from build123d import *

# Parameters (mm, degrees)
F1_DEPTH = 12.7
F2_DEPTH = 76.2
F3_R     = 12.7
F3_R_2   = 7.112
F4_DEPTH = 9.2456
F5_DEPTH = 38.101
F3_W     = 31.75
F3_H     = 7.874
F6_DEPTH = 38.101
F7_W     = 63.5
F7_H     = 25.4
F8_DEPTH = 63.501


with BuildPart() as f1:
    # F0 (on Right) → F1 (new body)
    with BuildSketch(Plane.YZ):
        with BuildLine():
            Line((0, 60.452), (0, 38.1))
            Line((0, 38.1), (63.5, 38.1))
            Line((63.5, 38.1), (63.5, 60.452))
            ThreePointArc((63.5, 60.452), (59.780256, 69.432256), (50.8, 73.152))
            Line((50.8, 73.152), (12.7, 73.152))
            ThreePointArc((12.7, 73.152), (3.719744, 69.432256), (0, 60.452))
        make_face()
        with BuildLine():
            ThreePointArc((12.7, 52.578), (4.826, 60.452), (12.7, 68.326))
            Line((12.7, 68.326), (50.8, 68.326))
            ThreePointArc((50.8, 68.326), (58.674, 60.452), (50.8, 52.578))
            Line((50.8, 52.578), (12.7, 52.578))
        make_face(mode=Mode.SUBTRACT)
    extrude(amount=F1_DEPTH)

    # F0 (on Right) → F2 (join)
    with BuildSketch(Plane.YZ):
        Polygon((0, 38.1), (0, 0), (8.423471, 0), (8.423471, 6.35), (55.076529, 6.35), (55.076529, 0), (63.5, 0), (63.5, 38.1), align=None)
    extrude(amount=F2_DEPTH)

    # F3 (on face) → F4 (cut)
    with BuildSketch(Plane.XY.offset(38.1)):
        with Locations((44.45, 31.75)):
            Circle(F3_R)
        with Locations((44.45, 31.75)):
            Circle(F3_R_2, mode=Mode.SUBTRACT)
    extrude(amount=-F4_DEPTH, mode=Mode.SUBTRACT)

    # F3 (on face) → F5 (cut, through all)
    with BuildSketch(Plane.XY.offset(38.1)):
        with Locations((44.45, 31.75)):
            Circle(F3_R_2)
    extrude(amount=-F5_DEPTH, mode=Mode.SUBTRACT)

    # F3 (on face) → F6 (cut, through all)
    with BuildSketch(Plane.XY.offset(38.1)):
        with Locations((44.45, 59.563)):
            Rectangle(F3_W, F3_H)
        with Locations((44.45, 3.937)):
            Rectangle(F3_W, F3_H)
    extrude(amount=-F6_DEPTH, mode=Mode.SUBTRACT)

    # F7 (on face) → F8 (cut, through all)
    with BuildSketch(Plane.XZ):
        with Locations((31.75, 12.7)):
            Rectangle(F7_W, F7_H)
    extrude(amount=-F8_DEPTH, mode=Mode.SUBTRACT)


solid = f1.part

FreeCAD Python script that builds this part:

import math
import FreeCAD as App
import Part
import Sketcher

V = App.Vector
Q = App.Units.Quantity

doc = App.newDocument("Part")
body = doc.addObject("PartDesign::Body", "Body")

sketch1 = doc.addObject("Sketcher::SketchObject", "Sketch")
body.addObject(sketch1)
sketch1.AttachmentSupport = (doc.YZ_Plane, [""])
sketch1.MapMode = "FlatFace"
sketch1.addGeometry(Part.LineSegment(V(0, 60, 0), V(0, 38, 0)), False)
sketch1.addGeometry(Part.LineSegment(V(0, 38, 0), V(64, 38, 0)), False)
sketch1.addGeometry(Part.LineSegment(V(64, 38, 0), V(64, 60, 0)), False)
sketch1.addGeometry(Part.ArcOfCircle(Part.Circle(V(51, 60, 0), V(0, 0, 1), 13), math.radians(0), math.radians(90)), False)
sketch1.addGeometry(Part.LineSegment(V(51, 73, 0), V(13, 73, 0)), False)
sketch1.addGeometry(Part.ArcOfCircle(Part.Circle(V(13, 60, 0), V(0, 0, 1), 13), math.radians(90), math.radians(180)), False)
sketch1.addGeometry(Part.LineSegment(V(51, 53, 0), V(13, 53, 0)), False)
sketch1.addGeometry(Part.ArcOfCircle(Part.Circle(V(13, 60, 0), V(0, 0, 1), 8), math.radians(90), math.radians(270)), False)
sketch1.addGeometry(Part.LineSegment(V(13, 68, 0), V(51, 68, 0)), False)
sketch1.addGeometry(Part.ArcOfCircle(Part.Circle(V(51, 60, 0), V(0, 0, 1), 8), math.radians(-90), math.radians(90)), False)
sketch1.addConstraint(Sketcher.Constraint("Coincident", 0, 2, 1, 1))
sketch1.addConstraint(Sketcher.Constraint("Coincident", 1, 2, 2, 1))
sketch1.addConstraint(Sketcher.Constraint("Tangent", 2, 2, 3, 1))
sketch1.addConstraint(Sketcher.Constraint("Tangent", 3, 2, 4, 1))
sketch1.addConstraint(Sketcher.Constraint("Tangent", 4, 2, 5, 1))
sketch1.addConstraint(Sketcher.Constraint("Tangent", 5, 2, 0, 1))
sketch1.addConstraint(Sketcher.Constraint("Tangent", 6, 2, 7, 2))
sketch1.addConstraint(Sketcher.Constraint("Tangent", 7, 1, 8, 1))
sketch1.addConstraint(Sketcher.Constraint("Tangent", 8, 2, 9, 2))
sketch1.addConstraint(Sketcher.Constraint("Tangent", 9, 1, 6, 1))
sketch1.addConstraint(Sketcher.Constraint("Vertical", 0))
sketch1.addConstraint(Sketcher.Constraint("Horizontal", 1))
sketch1.addConstraint(Sketcher.Constraint("Vertical", 2))
sketch1.addConstraint(Sketcher.Constraint("Horizontal", 4))
sketch1.addConstraint(Sketcher.Constraint("Horizontal", 6))
sketch1.addConstraint(Sketcher.Constraint("Horizontal", 8))
sketch1.addConstraint(Sketcher.Constraint("Coincident", 7, 3, 5, 3))
sketch1.addConstraint(Sketcher.Constraint("Coincident", 9, 3, 3, 3))
sketch1.addConstraint(Sketcher.Constraint("PointOnObject", 0, 2, -2))
sketch1.addConstraint(Sketcher.Constraint("Radius", 3, Q("0.5 in")))
sketch1.addConstraint(Sketcher.Constraint("Radius", 7, Q("0.31 in")))
sketch1.addConstraint(Sketcher.Constraint("DistanceX", 1, 1, 1, 2, Q("2.5 in")))
sketch1.addConstraint(Sketcher.Constraint("DistanceY", 0, 2, 0, 1, Q("0.88 in")))
sketch1.addConstraint(Sketcher.Constraint("DistanceY", -1, 1, 0, 2, Q("1.5 in")))
pad1 = doc.addObject("PartDesign::Pad", "Pad")
body.addObject(pad1)
pad1.Profile = sketch1
pad1.Length = Q("0.5 in")

sketch2 = doc.addObject("Sketcher::SketchObject", "Sketch001")
body.addObject(sketch2)
sketch2.AttachmentSupport = (doc.YZ_Plane, [""])
sketch2.MapMode = "FlatFace"
sketch2.addGeometry(Part.LineSegment(V(0, 38, 0), V(0, 0, 0)), False)
sketch2.addGeometry(Part.LineSegment(V(0, 0, 0), V(8, 0, 0)), False)
sketch2.addGeometry(Part.LineSegment(V(8, 0, 0), V(8, 6, 0)), False)
sketch2.addGeometry(Part.LineSegment(V(8, 6, 0), V(55, 6, 0)), False)
sketch2.addGeometry(Part.LineSegment(V(55, 6, 0), V(55, 0, 0)), False)
sketch2.addGeometry(Part.LineSegment(V(55, 0, 0), V(64, 0, 0)), False)
sketch2.addGeometry(Part.LineSegment(V(64, 0, 0), V(64, 38, 0)), False)
sketch2.addGeometry(Part.LineSegment(V(64, 38, 0), V(0, 38, 0)), False)
sketch2.addConstraint(Sketcher.Constraint("Coincident", 0, 2, 1, 1))
sketch2.addConstraint(Sketcher.Constraint("Coincident", 1, 2, 2, 1))
sketch2.addConstraint(Sketcher.Constraint("Coincident", 2, 2, 3, 1))
sketch2.addConstraint(Sketcher.Constraint("Coincident", 3, 2, 4, 1))
sketch2.addConstraint(Sketcher.Constraint("Coincident", 4, 2, 5, 1))
sketch2.addConstraint(Sketcher.Constraint("Coincident", 5, 2, 6, 1))
sketch2.addConstraint(Sketcher.Constraint("Coincident", 6, 2, 7, 1))
sketch2.addConstraint(Sketcher.Constraint("Coincident", 7, 2, 0, 1))
sketch2.addConstraint(Sketcher.Constraint("Vertical", 0))
sketch2.addConstraint(Sketcher.Constraint("Horizontal", 1))
sketch2.addConstraint(Sketcher.Constraint("Vertical", 2))
sketch2.addConstraint(Sketcher.Constraint("Horizontal", 3))
sketch2.addConstraint(Sketcher.Constraint("Vertical", 4))
sketch2.addConstraint(Sketcher.Constraint("Horizontal", 5))
sketch2.addConstraint(Sketcher.Constraint("Vertical", 6))
sketch2.addConstraint(Sketcher.Constraint("Horizontal", 7))
sketch2.addConstraint(Sketcher.Constraint("Coincident", 0, 2, -1, 1))
sketch2.addConstraint(Sketcher.Constraint("PointOnObject", 4, 2, -1))
sketch2.addConstraint(Sketcher.Constraint("Equal", 1, 5))
sketch2.addConstraint(Sketcher.Constraint("DistanceX", 7, 2, 7, 1, Q("2.5 in")))
sketch2.addConstraint(Sketcher.Constraint("DistanceY", 0, 2, 0, 1, Q("1.5 in")))
sketch2.addConstraint(Sketcher.Constraint("DistanceY", 2, 1, 2, 2, Q("0.25 in")))
sketch2.addConstraint(Sketcher.Constraint("DistanceX", 1, 1, 1, 2, Q("8.423471 mm")))
pad2 = doc.addObject("PartDesign::Pad", "Pad001")
body.addObject(pad2)
pad2.Profile = sketch2
pad2.Length = Q("3 in")

sketch3 = doc.addObject("Sketcher::SketchObject", "Sketch002")
body.addObject(sketch3)
sketch3.AttachmentSupport = (doc.XY_Plane, [""])
sketch3.MapMode = "FlatFace"
sketch3.AttachmentOffset = App.Placement(V(0, 0, 1.5 * 25.4), App.Rotation())
sketch3.addGeometry(Part.Circle(V(44, 32, 0), V(0, 0, 1), 13), False)
sketch3.addGeometry(Part.Circle(V(44, 32, 0), V(0, 0, 1), 7), False)
sketch3.addConstraint(Sketcher.Constraint("Coincident", 1, 3, 0, 3))
sketch3.addConstraint(Sketcher.Constraint("Diameter", 0, Q("1 in")))
sketch3.addConstraint(Sketcher.Constraint("Diameter", 1, Q("0.56 in")))
sketch3.addConstraint(Sketcher.Constraint("DistanceX", -1, 1, 0, 3, Q("1.75 in")))
sketch3.addConstraint(Sketcher.Constraint("DistanceY", -1, 1, 0, 3, Q("1.25 in")))
pocket1 = doc.addObject("PartDesign::Pocket", "Pocket")
body.addObject(pocket1)
pocket1.Profile = sketch3
pocket1.Length = Q("0.364 in")

sketch4 = doc.addObject("Sketcher::SketchObject", "Sketch003")
body.addObject(sketch4)
sketch4.AttachmentSupport = (doc.XY_Plane, [""])
sketch4.MapMode = "FlatFace"
sketch4.AttachmentOffset = App.Placement(V(0, 0, 1.5 * 25.4), App.Rotation())
sketch4.addGeometry(Part.Circle(V(44, 32, 0), V(0, 0, 1), 7), False)
sketch4.addConstraint(Sketcher.Constraint("Diameter", 0, Q("0.56 in")))
sketch4.addConstraint(Sketcher.Constraint("DistanceX", -1, 1, 0, 3, Q("1.75 in")))
sketch4.addConstraint(Sketcher.Constraint("DistanceY", -1, 1, 0, 3, Q("1.25 in")))
pocket2 = doc.addObject("PartDesign::Pocket", "Pocket001")
body.addObject(pocket2)
pocket2.Profile = sketch4
pocket2.Type = "ThroughAll"

sketch5 = doc.addObject("Sketcher::SketchObject", "Sketch004")
body.addObject(sketch5)
sketch5.AttachmentSupport = (doc.XY_Plane, [""])
sketch5.MapMode = "FlatFace"
sketch5.AttachmentOffset = App.Placement(V(0, 0, 1.5 * 25.4), App.Rotation())
sketch5.addGeometry(Part.LineSegment(V(29, 64, 0), V(29, 56, 0)), False)
sketch5.addGeometry(Part.LineSegment(V(29, 56, 0), V(60, 56, 0)), False)
sketch5.addGeometry(Part.LineSegment(V(60, 56, 0), V(60, 64, 0)), False)
sketch5.addGeometry(Part.LineSegment(V(60, 64, 0), V(29, 64, 0)), False)
sketch5.addGeometry(Part.LineSegment(V(29, 8, 0), V(29, 0, 0)), False)
sketch5.addGeometry(Part.LineSegment(V(29, 0, 0), V(60, 0, 0)), False)
sketch5.addGeometry(Part.LineSegment(V(60, 0, 0), V(60, 8, 0)), False)
sketch5.addGeometry(Part.LineSegment(V(60, 8, 0), V(29, 8, 0)), False)
sketch5.addConstraint(Sketcher.Constraint("Coincident", 0, 2, 1, 1))
sketch5.addConstraint(Sketcher.Constraint("Coincident", 1, 2, 2, 1))
sketch5.addConstraint(Sketcher.Constraint("Coincident", 2, 2, 3, 1))
sketch5.addConstraint(Sketcher.Constraint("Coincident", 3, 2, 0, 1))
sketch5.addConstraint(Sketcher.Constraint("Coincident", 4, 2, 5, 1))
sketch5.addConstraint(Sketcher.Constraint("Coincident", 5, 2, 6, 1))
sketch5.addConstraint(Sketcher.Constraint("Coincident", 6, 2, 7, 1))
sketch5.addConstraint(Sketcher.Constraint("Coincident", 7, 2, 4, 1))
sketch5.addConstraint(Sketcher.Constraint("Vertical", 0))
sketch5.addConstraint(Sketcher.Constraint("Horizontal", 1))
sketch5.addConstraint(Sketcher.Constraint("Vertical", 2))
sketch5.addConstraint(Sketcher.Constraint("Horizontal", 3))
sketch5.addConstraint(Sketcher.Constraint("Vertical", 4))
sketch5.addConstraint(Sketcher.Constraint("Horizontal", 5))
sketch5.addConstraint(Sketcher.Constraint("Vertical", 6))
sketch5.addConstraint(Sketcher.Constraint("Horizontal", 7))
sketch5.addConstraint(Sketcher.Constraint("PointOnObject", 4, 2, -1))
sketch5.addConstraint(Sketcher.Constraint("Vertical", 3, 2, 4, 2))
sketch5.addConstraint(Sketcher.Constraint("Vertical", 2, 2, 5, 2))
sketch5.addConstraint(Sketcher.Constraint("Equal", 2, 4))
sketch5.addConstraint(Sketcher.Constraint("DistanceX", 1, 1, 1, 2, Q("1.25 in")))
sketch5.addConstraint(Sketcher.Constraint("DistanceY", 0, 2, 0, 1, Q("0.31 in")))
sketch5.addConstraint(Sketcher.Constraint("DistanceY", -1, 1, 2, 2, Q("2.5 in")))
sketch5.addConstraint(Sketcher.Constraint("DistanceX", -1, 1, 0, 2, Q("1.125 in")))
pocket3 = doc.addObject("PartDesign::Pocket", "Pocket002")
body.addObject(pocket3)
pocket3.Profile = sketch5
pocket3.Type = "ThroughAll"

sketch6 = doc.addObject("Sketcher::SketchObject", "Sketch005")
body.addObject(sketch6)
sketch6.AttachmentSupport = (doc.XZ_Plane, [""])
sketch6.MapMode = "FlatFace"
sketch6.addGeometry(Part.LineSegment(V(0, 25, 0), V(0, 0, 0)), False)
sketch6.addGeometry(Part.LineSegment(V(0, 0, 0), V(64, 0, 0)), False)
sketch6.addGeometry(Part.LineSegment(V(64, 0, 0), V(64, 25, 0)), False)
sketch6.addGeometry(Part.LineSegment(V(64, 25, 0), V(0, 25, 0)), False)
sketch6.addConstraint(Sketcher.Constraint("Coincident", 0, 2, 1, 1))
sketch6.addConstraint(Sketcher.Constraint("Coincident", 1, 2, 2, 1))
sketch6.addConstraint(Sketcher.Constraint("Coincident", 2, 2, 3, 1))
sketch6.addConstraint(Sketcher.Constraint("Coincident", 3, 2, 0, 1))
sketch6.addConstraint(Sketcher.Constraint("Vertical", 0))
sketch6.addConstraint(Sketcher.Constraint("Horizontal", 1))
sketch6.addConstraint(Sketcher.Constraint("Vertical", 2))
sketch6.addConstraint(Sketcher.Constraint("Horizontal", 3))
sketch6.addConstraint(Sketcher.Constraint("Coincident", 0, 2, -1, 1))
sketch6.addConstraint(Sketcher.Constraint("DistanceY", 0, 2, 0, 1, Q("1 in")))
sketch6.addConstraint(Sketcher.Constraint("DistanceX", 1, 1, 1, 2, Q("2.5 in")))
pocket4 = doc.addObject("PartDesign::Pocket", "Pocket003")
body.addObject(pocket4)
pocket4.Profile = sketch6
pocket4.Type = "ThroughAll"

doc.recompute()
